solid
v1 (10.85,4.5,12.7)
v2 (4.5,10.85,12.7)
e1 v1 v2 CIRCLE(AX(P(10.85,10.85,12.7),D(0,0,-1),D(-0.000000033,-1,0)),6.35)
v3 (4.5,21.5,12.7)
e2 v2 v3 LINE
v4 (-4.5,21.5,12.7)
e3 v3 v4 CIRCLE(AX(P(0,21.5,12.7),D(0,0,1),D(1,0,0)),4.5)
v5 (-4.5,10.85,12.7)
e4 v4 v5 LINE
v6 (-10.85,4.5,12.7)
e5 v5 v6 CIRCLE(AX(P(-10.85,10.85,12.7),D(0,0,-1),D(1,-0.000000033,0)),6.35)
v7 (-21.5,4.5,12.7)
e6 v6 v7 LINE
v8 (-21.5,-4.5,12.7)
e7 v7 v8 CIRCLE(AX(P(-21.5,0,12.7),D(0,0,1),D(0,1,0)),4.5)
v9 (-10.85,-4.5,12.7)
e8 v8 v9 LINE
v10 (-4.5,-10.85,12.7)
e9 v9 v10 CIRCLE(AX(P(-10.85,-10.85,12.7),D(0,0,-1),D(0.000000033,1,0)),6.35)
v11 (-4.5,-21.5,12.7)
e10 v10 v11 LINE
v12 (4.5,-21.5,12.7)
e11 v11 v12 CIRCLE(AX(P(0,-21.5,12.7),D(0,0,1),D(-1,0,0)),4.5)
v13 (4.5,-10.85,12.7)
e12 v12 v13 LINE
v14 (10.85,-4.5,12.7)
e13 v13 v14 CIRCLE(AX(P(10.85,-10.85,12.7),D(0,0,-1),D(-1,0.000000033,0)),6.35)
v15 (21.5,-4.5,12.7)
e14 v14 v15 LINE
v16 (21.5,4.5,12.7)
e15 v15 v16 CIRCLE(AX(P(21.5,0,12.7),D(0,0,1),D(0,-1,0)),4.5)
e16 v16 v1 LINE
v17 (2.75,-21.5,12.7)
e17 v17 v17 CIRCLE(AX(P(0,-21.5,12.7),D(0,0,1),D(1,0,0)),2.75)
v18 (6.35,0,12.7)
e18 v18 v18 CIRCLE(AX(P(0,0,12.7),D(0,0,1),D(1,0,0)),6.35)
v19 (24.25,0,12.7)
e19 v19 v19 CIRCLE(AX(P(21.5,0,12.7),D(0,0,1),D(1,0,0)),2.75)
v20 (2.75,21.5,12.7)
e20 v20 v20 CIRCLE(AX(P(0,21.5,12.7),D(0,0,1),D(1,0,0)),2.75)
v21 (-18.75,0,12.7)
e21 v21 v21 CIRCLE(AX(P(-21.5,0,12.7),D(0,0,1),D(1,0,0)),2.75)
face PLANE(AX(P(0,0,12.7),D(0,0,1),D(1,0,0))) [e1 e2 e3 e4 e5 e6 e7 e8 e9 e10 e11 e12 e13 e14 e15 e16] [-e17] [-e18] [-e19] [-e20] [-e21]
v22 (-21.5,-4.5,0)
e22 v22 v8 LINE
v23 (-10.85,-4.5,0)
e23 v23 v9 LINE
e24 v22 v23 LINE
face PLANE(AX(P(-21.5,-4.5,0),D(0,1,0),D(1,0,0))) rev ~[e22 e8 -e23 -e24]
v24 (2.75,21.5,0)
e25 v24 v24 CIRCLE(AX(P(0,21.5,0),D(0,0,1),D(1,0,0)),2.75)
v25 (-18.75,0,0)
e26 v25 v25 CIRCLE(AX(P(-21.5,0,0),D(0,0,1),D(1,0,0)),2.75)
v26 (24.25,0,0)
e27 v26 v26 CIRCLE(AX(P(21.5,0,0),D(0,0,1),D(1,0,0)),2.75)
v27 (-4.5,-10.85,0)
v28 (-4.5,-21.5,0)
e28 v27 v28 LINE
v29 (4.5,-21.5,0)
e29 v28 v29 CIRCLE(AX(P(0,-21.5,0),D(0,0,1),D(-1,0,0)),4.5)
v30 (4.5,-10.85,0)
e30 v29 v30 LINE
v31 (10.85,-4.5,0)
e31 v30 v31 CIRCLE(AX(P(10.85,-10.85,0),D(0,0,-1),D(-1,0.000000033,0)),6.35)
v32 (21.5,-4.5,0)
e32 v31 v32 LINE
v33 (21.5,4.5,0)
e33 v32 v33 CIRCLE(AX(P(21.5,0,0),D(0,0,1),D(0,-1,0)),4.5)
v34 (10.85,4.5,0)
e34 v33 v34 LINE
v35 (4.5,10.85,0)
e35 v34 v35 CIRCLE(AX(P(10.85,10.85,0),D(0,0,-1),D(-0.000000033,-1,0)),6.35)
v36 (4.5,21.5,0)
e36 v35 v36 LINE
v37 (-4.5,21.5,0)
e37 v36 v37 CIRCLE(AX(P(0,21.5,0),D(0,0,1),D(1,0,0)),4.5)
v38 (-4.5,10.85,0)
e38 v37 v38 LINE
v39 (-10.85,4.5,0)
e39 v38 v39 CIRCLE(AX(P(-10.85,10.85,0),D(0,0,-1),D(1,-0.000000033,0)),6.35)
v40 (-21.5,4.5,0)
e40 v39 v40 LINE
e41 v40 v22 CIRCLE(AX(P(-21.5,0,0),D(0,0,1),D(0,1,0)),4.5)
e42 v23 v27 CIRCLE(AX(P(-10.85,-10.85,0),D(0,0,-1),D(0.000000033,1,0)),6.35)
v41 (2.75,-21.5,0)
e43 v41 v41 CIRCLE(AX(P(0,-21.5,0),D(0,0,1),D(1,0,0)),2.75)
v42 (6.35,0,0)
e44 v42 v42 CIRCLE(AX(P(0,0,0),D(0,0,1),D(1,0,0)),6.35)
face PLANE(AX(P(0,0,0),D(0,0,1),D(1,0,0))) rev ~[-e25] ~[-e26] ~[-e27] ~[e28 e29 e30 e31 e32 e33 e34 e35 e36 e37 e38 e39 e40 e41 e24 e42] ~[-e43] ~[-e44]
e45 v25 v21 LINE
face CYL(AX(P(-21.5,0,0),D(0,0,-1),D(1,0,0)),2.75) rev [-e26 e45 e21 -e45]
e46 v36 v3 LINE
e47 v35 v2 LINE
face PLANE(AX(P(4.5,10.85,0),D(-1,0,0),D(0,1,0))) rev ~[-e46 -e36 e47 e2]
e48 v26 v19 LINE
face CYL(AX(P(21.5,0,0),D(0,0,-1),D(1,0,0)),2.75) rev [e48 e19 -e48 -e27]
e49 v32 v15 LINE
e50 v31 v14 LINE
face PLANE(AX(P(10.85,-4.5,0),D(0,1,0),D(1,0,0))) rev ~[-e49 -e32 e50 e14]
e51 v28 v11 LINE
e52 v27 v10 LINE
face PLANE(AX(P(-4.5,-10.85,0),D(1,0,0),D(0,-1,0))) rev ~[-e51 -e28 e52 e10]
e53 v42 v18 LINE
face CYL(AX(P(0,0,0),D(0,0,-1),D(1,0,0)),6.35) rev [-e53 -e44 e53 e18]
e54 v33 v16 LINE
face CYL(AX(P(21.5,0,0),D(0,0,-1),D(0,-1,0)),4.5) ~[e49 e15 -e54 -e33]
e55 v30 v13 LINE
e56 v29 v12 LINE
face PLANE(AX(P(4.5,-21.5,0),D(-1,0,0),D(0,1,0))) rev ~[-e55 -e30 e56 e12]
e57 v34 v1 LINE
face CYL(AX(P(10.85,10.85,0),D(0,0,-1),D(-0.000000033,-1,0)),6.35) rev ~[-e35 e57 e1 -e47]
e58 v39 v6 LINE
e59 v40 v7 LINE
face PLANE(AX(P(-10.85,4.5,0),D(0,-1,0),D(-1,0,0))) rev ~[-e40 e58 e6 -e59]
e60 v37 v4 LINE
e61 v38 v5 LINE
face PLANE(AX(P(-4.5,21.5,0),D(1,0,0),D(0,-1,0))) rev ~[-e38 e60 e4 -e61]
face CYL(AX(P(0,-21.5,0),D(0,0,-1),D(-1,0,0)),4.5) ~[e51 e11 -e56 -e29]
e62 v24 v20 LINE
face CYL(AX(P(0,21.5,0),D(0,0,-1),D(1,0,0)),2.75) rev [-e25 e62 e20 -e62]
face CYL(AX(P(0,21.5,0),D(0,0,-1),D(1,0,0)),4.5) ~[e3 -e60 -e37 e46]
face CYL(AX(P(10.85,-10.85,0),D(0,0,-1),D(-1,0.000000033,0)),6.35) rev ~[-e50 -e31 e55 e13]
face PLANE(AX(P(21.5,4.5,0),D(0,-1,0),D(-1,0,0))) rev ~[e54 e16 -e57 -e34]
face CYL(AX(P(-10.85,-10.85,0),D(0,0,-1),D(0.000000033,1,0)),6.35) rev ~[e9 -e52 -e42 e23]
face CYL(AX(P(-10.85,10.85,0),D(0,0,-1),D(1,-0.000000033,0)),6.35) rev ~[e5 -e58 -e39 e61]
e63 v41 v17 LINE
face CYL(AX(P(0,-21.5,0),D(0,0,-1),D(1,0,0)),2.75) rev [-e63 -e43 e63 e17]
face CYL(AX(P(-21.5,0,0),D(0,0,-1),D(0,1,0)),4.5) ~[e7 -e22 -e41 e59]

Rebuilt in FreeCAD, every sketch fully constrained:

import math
import FreeCAD as App
import Part
import Sketcher

doc = App.newDocument("Part")
body = doc.addObject("PartDesign::Body", "Body")

# Sketch on XY plane
sketch1 = body.newObject("Sketcher::SketchObject", "Sketch")
sketch1.AttachmentSupport = (doc.getObject("XY_Plane"), [""])
sketch1.MapMode = "FlatFace"
sketch1.addGeometry([
    Part.LineSegment(App.Vector(4.5, 10.8, 0), App.Vector(4.5, 21.5, 0)),  # 0
    Part.ArcOfCircle(Part.Circle(App.Vector(0, 21.5, 0), App.Vector(0, 0, 1), 4.5), math.radians(0), math.radians(180)),  # 1
    Part.LineSegment(App.Vector(-4.5, 21.5, 0), App.Vector(-4.5, 10.8, 0)),  # 2
    Part.ArcOfCircle(Part.Circle(App.Vector(-10.9, 10.9, 0), App.Vector(0, 0, 1), 6.4), math.radians(-90), math.radians(0)),  # 3
    Part.LineSegment(App.Vector(-10.8, 4.5, 0), App.Vector(-21.5, 4.5, 0)),  # 4
    Part.ArcOfCircle(Part.Circle(App.Vector(-21.5, 0, 0), App.Vector(0, 0, 1), 4.5), math.radians(90), math.radians(270)),  # 5
    Part.LineSegment(App.Vector(-21.5, -4.5, 0), App.Vector(-10.8, -4.5, 0)),  # 6
    Part.ArcOfCircle(Part.Circle(App.Vector(-10.9, -10.9, 0), App.Vector(0, 0, 1), 6.4), math.radians(0), math.radians(90)),  # 7
    Part.LineSegment(App.Vector(-4.5, -10.8, 0), App.Vector(-4.5, -21.5, 0)),  # 8
    Part.ArcOfCircle(Part.Circle(App.Vector(0, -21.5, 0), App.Vector(0, 0, 1), 4.5), math.radians(180), math.radians(360)),  # 9
    Part.LineSegment(App.Vector(4.5, -21.5, 0), App.Vector(4.5, -10.8, 0)),  # 10
    Part.ArcOfCircle(Part.Circle(App.Vector(10.9, -10.9, 0), App.Vector(0, 0, 1), 6.4), math.radians(90), math.radians(180)),  # 11
    Part.LineSegment(App.Vector(10.8, -4.5, 0), App.Vector(21.5, -4.5, 0)),  # 12
    Part.ArcOfCircle(Part.Circle(App.Vector(21.5, 0, 0), App.Vector(0, 0, 1), 4.5), math.radians(-90), math.radians(90)),  # 13
    Part.LineSegment(App.Vector(21.5, 4.5, 0), App.Vector(10.8, 4.5, 0)),  # 14
    Part.ArcOfCircle(Part.Circle(App.Vector(10.9, 10.9, 0), App.Vector(0, 0, 1), 6.4), math.radians(-180), math.radians(-90)),  # 15
    Part.Circle(App.Vector(0, -21.5, 0), App.Vector(0, 0, 1), 2.8),  # 16
    Part.Circle(App.Vector(-21.5, 0, 0), App.Vector(0, 0, 1), 2.8),  # 17
    Part.Circle(App.Vector(0, 0, 0), App.Vector(0, 0, 1), 6.3),  # 18
    Part.Circle(App.Vector(21.5, 0, 0), App.Vector(0, 0, 1), 2.8),  # 19
    Part.Circle(App.Vector(0, 21.5, 0), App.Vector(0, 0, 1), 2.8),  # 20
], False)
sketch1.addConstraint([
    Sketcher.Constraint("Tangent", 0, 2, 1, 1),
    Sketcher.Constraint("Tangent", 1, 2, 2, 1),
    Sketcher.Constraint("Tangent", 2, 2, 3, 2),
    Sketcher.Constraint("Tangent", 3, 1, 4, 1),
    Sketcher.Constraint("Tangent", 4, 2, 5, 1),
    Sketcher.Constraint("Tangent", 5, 2, 6, 1),
    Sketcher.Constraint("Tangent", 6, 2, 7, 2),
    Sketcher.Constraint("Tangent", 7, 1, 8, 1),
    Sketcher.Constraint("Tangent", 8, 2, 9, 1),
    Sketcher.Constraint("Tangent", 9, 2, 10, 1),
    Sketcher.Constraint("Tangent", 10, 2, 11, 2),
    Sketcher.Constraint("Tangent", 11, 1, 12, 1),
    Sketcher.Constraint("Tangent", 12, 2, 13, 1),
    Sketcher.Constraint("Tangent", 13, 2, 14, 1),
    Sketcher.Constraint("Tangent", 14, 2, 15, 2),
    Sketcher.Constraint("Tangent", 15, 1, 0, 1),
    Sketcher.Constraint("Vertical", 0),
    Sketcher.Constraint("Vertical", 2),
    Sketcher.Constraint("Horizontal", 4),
    Sketcher.Constraint("Horizontal", 6),
    Sketcher.Constraint("Vertical", 8),
    Sketcher.Constraint("Vertical", 10),
    Sketcher.Constraint("Horizontal", 12),
    Sketcher.Constraint("Horizontal", 14),
    Sketcher.Constraint("Coincident", 18, 3, -1, 1),
    Sketcher.Constraint("Coincident", 16, 3, 9, 3),
    Sketcher.Constraint("Coincident", 17, 3, 5, 3),
    Sketcher.Constraint("Coincident", 19, 3, 13, 3),
    Sketcher.Constraint("Coincident", 20, 3, 1, 3),
    Sketcher.Constraint("Equal", 1, 5),
    Sketcher.Constraint("Equal", 3, 7),
    Sketcher.Constraint("Equal", 5, 9),
    Sketcher.Constraint("Equal", 7, 11),
    Sketcher.Constraint("Equal", 9, 13),
    Sketcher.Constraint("Equal", 11, 15),
    Sketcher.Constraint("Equal", 16, 17),
    Sketcher.Constraint("Equal", 15, 18),
    Sketcher.Constraint("Equal", 17, 19),
    Sketcher.Constraint("Equal", 19, 20),
    Sketcher.Constraint("Symmetric", 1, 3, 9, 3, -1, 1),
    Sketcher.Constraint("Symmetric", 5, 3, 13, 3, -1, 1),
    Sketcher.Constraint("Symmetric", 7, 3, 11, 3, -2),
    Sketcher.Constraint("Equal", 14, 0),
    Sketcher.Constraint("Diameter", 16, 5.5),
    Sketcher.Constraint("Diameter", 18, 12.7),
    Sketcher.Constraint("Radius", 1, 4.5),
    Sketcher.Constraint("DistanceY", 9, 3, 1, 3, 43.0),
])
pad1 = body.newObject("PartDesign::Pad", "Pad")
pad1.Profile = sketch1
pad1.Length = 12.7

doc.recompute()
